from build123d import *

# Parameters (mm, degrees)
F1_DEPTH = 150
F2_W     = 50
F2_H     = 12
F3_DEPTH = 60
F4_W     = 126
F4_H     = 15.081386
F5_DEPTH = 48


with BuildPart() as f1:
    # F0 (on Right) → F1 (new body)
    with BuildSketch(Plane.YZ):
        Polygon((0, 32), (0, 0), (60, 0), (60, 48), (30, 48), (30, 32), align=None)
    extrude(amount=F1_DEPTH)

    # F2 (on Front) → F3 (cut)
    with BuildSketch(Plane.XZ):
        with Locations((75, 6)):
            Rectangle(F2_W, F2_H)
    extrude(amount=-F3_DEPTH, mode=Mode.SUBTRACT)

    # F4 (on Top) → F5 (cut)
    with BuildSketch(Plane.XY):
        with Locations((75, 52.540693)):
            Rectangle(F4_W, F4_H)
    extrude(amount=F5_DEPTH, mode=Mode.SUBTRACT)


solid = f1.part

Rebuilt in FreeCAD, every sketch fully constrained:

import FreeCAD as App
import Part
import Sketcher
from FreeCAD import Vector
Q = App.Units.Quantity


def add_polygon(sketch, points):
    """Adds a closed chain of lines whose ends are joined by coincident constraints."""
    first, n = sketch.GeometryCount, len(points)
    for a, b in zip(points, points[1:] + points[:1]):
        sketch.addGeometry(Part.LineSegment(App.Vector(*a, 0), App.Vector(*b, 0)), False)
    for i in range(n):
        sketch.addConstraint(Sketcher.Constraint("Coincident", first + i, 2, first + (i + 1) % n, 1))

doc = App.newDocument("Part")
body = doc.addObject("PartDesign::Body", "Body")

sketch1 = body.newObject("Sketcher::SketchObject", "Sketch")
sketch1.AttachmentSupport = (doc.getObject("YZ_Plane"), [""])
sketch1.MapMode = "FlatFace"
add_polygon(sketch1, [(0, 32), (0, 0), (60, 0), (60, 48), (30, 48), (30, 32)])
sketch1.addConstraint([
    Sketcher.Constraint("Vertical", 0),
    Sketcher.Constraint("Horizontal", 1),
    Sketcher.Constraint("Vertical", 2),
    Sketcher.Constraint("Horizontal", 3),
    Sketcher.Constraint("Vertical", 4),
    Sketcher.Constraint("Horizontal", 5),
    Sketcher.Constraint("Coincident", 0, 2, -1, 1),
    Sketcher.Constraint("Equal", 3, 5),
    Sketcher.Constraint("DistanceX", 1, 1, 1, 2, Q("60 mm")),
    Sketcher.Constraint("DistanceY", 0, 2, 0, 1, Q("32 mm")),
    Sketcher.Constraint("DistanceY", 2, 1, 2, 2, Q("48 mm")),
])
pad1 = body.newObject("PartDesign::Pad", "Pad")
pad1.Profile = sketch1
pad1.Length = 150

sketch2 = body.newObject("Sketcher::SketchObject", "Sketch001")
sketch2.AttachmentSupport = (doc.getObject("XZ_Plane"), [""])
sketch2.MapMode = "FlatFace"
add_polygon(sketch2, [(50, 12), (50, 0), (100, 0), (100, 12)])
sketch2.addConstraint([
    Sketcher.Constraint("Vertical", 0),
    Sketcher.Constraint("Horizontal", 1),
    Sketcher.Constraint("Vertical", 2),
    Sketcher.Constraint("Horizontal", 3),
    Sketcher.Constraint("PointOnObject", 0, 2, -1),
    Sketcher.Constraint("DistanceX", 1, 1, 1, 2, Q("50 mm")),
    Sketcher.Constraint("DistanceY", 0, 2, 0, 1, Q("12 mm")),
    Sketcher.Constraint("DistanceX", -1, 1, 0, 2, Q("50 mm")),
])
pocket1 = body.newObject("PartDesign::Pocket", "Pocket")
pocket1.Profile = sketch2
pocket1.Length = 60

sketch3 = body.newObject("Sketcher::SketchObject", "Sketch002")
sketch3.AttachmentSupport = (doc.getObject("XY_Plane"), [""])
sketch3.MapMode = "FlatFace"
add_polygon(sketch3, [(12, 60), (12, 45), (138, 45), (138, 60)])
sketch3.addConstraint([
    Sketcher.Constraint("Vertical", 0),
    Sketcher.Constraint("Horizontal", 1),
    Sketcher.Constraint("Vertical", 2),
    Sketcher.Constraint("Horizontal", 3),
    Sketcher.Constraint("DistanceX", 1, 1, 1, 2, Q("126 mm")),
    Sketcher.Constraint("DistanceX", -1, 1, 0, 2, Q("12 mm")),
    Sketcher.Constraint("DistanceY", -1, 1, 0, 2, Q("45 mm")),
    Sketcher.Constraint("DistanceY", 0, 2, 0, 1, Q("15.081386 mm")),
])
pocket2 = body.newObject("PartDesign::Pocket", "Pocket001")
pocket2.Profile = sketch3
pocket2.Length = 48
pocket2.Reversed = True

doc.recompute()
